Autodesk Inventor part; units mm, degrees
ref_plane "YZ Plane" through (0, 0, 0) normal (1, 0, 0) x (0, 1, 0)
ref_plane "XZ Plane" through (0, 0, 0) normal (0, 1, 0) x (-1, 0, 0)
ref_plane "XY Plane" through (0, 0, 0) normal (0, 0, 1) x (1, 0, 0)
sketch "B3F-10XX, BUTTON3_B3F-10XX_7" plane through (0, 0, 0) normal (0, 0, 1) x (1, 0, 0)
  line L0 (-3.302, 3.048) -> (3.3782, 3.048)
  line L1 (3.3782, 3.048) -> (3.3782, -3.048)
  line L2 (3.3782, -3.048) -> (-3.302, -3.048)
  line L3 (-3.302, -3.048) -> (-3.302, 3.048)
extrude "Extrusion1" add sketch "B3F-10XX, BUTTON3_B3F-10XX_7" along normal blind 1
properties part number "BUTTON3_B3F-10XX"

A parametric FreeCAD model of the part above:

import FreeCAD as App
import Part
import Sketcher
from FreeCAD import Vector
Q = App.Units.Quantity


def add_polygon(sketch, points):
    """Adds a closed chain of lines whose ends are joined by coincident constraints."""
    first, n = sketch.GeometryCount, len(points)
    for a, b in zip(points, points[1:] + points[:1]):
        sketch.addGeometry(Part.LineSegment(App.Vector(*a, 0), App.Vector(*b, 0)), False)
    for i in range(n):
        sketch.addConstraint(Sketcher.Constraint("Coincident", first + i, 2, first + (i + 1) % n, 1))

doc = App.newDocument("Part")
params = doc.addObject("Spreadsheet::Sheet", "Params")
for row, (alias, value) in enumerate([
    ("sketch1_height", "0.24 in"),
    ("sketch1_width", "0.263 in"),
    ("pad1_length", "1 mm"),
], start=1):
    params.set(f"A{row}", alias)
    params.set(f"B{row}", "=" + value)
    params.setAlias(f"B{row}", alias)

body = doc.addObject("PartDesign::Body", "Body")

sketch1 = body.newObject("Sketcher::SketchObject", "Sketch")
sketch1.AttachmentSupport = (doc.getObject("XY_Plane"), [""])
sketch1.MapMode = "FlatFace"
add_polygon(sketch1, [(3, 3), (-3, 3), (-3, -3), (3, -3)])
sketch1.addConstraint(Sketcher.Constraint("Horizontal", 0))
sketch1.addConstraint(Sketcher.Constraint("Vertical", 1))
sketch1.addConstraint(Sketcher.Constraint("Horizontal", 2))
sketch1.addConstraint(Sketcher.Constraint("Vertical", 3))
sketch1.addConstraint(Sketcher.Constraint("DistanceY", 1, 2, 1, 1, Q("0.24 in")))
sketch1.addConstraint(Sketcher.Constraint("DistanceX", 0, 2, 0, 1, Q("0.263 in")))
sketch1.addConstraint(Sketcher.Constraint("DistanceX", 0, 2, -1, 1, Q("0.13 in")))
sketch1.addConstraint(Sketcher.Constraint("DistanceY", -1, 1, 0, 2, Q("0.12 in")))
sketch1.setExpression("Constraints[8]", "Params.sketch1_height")
sketch1.setExpression("Constraints[9]", "Params.sketch1_width")
pad1 = body.newObject("PartDesign::Pad", "Pad")
pad1.Profile = sketch1
pad1.setExpression("Length", "Params.pad1_length")

doc.recompute()
